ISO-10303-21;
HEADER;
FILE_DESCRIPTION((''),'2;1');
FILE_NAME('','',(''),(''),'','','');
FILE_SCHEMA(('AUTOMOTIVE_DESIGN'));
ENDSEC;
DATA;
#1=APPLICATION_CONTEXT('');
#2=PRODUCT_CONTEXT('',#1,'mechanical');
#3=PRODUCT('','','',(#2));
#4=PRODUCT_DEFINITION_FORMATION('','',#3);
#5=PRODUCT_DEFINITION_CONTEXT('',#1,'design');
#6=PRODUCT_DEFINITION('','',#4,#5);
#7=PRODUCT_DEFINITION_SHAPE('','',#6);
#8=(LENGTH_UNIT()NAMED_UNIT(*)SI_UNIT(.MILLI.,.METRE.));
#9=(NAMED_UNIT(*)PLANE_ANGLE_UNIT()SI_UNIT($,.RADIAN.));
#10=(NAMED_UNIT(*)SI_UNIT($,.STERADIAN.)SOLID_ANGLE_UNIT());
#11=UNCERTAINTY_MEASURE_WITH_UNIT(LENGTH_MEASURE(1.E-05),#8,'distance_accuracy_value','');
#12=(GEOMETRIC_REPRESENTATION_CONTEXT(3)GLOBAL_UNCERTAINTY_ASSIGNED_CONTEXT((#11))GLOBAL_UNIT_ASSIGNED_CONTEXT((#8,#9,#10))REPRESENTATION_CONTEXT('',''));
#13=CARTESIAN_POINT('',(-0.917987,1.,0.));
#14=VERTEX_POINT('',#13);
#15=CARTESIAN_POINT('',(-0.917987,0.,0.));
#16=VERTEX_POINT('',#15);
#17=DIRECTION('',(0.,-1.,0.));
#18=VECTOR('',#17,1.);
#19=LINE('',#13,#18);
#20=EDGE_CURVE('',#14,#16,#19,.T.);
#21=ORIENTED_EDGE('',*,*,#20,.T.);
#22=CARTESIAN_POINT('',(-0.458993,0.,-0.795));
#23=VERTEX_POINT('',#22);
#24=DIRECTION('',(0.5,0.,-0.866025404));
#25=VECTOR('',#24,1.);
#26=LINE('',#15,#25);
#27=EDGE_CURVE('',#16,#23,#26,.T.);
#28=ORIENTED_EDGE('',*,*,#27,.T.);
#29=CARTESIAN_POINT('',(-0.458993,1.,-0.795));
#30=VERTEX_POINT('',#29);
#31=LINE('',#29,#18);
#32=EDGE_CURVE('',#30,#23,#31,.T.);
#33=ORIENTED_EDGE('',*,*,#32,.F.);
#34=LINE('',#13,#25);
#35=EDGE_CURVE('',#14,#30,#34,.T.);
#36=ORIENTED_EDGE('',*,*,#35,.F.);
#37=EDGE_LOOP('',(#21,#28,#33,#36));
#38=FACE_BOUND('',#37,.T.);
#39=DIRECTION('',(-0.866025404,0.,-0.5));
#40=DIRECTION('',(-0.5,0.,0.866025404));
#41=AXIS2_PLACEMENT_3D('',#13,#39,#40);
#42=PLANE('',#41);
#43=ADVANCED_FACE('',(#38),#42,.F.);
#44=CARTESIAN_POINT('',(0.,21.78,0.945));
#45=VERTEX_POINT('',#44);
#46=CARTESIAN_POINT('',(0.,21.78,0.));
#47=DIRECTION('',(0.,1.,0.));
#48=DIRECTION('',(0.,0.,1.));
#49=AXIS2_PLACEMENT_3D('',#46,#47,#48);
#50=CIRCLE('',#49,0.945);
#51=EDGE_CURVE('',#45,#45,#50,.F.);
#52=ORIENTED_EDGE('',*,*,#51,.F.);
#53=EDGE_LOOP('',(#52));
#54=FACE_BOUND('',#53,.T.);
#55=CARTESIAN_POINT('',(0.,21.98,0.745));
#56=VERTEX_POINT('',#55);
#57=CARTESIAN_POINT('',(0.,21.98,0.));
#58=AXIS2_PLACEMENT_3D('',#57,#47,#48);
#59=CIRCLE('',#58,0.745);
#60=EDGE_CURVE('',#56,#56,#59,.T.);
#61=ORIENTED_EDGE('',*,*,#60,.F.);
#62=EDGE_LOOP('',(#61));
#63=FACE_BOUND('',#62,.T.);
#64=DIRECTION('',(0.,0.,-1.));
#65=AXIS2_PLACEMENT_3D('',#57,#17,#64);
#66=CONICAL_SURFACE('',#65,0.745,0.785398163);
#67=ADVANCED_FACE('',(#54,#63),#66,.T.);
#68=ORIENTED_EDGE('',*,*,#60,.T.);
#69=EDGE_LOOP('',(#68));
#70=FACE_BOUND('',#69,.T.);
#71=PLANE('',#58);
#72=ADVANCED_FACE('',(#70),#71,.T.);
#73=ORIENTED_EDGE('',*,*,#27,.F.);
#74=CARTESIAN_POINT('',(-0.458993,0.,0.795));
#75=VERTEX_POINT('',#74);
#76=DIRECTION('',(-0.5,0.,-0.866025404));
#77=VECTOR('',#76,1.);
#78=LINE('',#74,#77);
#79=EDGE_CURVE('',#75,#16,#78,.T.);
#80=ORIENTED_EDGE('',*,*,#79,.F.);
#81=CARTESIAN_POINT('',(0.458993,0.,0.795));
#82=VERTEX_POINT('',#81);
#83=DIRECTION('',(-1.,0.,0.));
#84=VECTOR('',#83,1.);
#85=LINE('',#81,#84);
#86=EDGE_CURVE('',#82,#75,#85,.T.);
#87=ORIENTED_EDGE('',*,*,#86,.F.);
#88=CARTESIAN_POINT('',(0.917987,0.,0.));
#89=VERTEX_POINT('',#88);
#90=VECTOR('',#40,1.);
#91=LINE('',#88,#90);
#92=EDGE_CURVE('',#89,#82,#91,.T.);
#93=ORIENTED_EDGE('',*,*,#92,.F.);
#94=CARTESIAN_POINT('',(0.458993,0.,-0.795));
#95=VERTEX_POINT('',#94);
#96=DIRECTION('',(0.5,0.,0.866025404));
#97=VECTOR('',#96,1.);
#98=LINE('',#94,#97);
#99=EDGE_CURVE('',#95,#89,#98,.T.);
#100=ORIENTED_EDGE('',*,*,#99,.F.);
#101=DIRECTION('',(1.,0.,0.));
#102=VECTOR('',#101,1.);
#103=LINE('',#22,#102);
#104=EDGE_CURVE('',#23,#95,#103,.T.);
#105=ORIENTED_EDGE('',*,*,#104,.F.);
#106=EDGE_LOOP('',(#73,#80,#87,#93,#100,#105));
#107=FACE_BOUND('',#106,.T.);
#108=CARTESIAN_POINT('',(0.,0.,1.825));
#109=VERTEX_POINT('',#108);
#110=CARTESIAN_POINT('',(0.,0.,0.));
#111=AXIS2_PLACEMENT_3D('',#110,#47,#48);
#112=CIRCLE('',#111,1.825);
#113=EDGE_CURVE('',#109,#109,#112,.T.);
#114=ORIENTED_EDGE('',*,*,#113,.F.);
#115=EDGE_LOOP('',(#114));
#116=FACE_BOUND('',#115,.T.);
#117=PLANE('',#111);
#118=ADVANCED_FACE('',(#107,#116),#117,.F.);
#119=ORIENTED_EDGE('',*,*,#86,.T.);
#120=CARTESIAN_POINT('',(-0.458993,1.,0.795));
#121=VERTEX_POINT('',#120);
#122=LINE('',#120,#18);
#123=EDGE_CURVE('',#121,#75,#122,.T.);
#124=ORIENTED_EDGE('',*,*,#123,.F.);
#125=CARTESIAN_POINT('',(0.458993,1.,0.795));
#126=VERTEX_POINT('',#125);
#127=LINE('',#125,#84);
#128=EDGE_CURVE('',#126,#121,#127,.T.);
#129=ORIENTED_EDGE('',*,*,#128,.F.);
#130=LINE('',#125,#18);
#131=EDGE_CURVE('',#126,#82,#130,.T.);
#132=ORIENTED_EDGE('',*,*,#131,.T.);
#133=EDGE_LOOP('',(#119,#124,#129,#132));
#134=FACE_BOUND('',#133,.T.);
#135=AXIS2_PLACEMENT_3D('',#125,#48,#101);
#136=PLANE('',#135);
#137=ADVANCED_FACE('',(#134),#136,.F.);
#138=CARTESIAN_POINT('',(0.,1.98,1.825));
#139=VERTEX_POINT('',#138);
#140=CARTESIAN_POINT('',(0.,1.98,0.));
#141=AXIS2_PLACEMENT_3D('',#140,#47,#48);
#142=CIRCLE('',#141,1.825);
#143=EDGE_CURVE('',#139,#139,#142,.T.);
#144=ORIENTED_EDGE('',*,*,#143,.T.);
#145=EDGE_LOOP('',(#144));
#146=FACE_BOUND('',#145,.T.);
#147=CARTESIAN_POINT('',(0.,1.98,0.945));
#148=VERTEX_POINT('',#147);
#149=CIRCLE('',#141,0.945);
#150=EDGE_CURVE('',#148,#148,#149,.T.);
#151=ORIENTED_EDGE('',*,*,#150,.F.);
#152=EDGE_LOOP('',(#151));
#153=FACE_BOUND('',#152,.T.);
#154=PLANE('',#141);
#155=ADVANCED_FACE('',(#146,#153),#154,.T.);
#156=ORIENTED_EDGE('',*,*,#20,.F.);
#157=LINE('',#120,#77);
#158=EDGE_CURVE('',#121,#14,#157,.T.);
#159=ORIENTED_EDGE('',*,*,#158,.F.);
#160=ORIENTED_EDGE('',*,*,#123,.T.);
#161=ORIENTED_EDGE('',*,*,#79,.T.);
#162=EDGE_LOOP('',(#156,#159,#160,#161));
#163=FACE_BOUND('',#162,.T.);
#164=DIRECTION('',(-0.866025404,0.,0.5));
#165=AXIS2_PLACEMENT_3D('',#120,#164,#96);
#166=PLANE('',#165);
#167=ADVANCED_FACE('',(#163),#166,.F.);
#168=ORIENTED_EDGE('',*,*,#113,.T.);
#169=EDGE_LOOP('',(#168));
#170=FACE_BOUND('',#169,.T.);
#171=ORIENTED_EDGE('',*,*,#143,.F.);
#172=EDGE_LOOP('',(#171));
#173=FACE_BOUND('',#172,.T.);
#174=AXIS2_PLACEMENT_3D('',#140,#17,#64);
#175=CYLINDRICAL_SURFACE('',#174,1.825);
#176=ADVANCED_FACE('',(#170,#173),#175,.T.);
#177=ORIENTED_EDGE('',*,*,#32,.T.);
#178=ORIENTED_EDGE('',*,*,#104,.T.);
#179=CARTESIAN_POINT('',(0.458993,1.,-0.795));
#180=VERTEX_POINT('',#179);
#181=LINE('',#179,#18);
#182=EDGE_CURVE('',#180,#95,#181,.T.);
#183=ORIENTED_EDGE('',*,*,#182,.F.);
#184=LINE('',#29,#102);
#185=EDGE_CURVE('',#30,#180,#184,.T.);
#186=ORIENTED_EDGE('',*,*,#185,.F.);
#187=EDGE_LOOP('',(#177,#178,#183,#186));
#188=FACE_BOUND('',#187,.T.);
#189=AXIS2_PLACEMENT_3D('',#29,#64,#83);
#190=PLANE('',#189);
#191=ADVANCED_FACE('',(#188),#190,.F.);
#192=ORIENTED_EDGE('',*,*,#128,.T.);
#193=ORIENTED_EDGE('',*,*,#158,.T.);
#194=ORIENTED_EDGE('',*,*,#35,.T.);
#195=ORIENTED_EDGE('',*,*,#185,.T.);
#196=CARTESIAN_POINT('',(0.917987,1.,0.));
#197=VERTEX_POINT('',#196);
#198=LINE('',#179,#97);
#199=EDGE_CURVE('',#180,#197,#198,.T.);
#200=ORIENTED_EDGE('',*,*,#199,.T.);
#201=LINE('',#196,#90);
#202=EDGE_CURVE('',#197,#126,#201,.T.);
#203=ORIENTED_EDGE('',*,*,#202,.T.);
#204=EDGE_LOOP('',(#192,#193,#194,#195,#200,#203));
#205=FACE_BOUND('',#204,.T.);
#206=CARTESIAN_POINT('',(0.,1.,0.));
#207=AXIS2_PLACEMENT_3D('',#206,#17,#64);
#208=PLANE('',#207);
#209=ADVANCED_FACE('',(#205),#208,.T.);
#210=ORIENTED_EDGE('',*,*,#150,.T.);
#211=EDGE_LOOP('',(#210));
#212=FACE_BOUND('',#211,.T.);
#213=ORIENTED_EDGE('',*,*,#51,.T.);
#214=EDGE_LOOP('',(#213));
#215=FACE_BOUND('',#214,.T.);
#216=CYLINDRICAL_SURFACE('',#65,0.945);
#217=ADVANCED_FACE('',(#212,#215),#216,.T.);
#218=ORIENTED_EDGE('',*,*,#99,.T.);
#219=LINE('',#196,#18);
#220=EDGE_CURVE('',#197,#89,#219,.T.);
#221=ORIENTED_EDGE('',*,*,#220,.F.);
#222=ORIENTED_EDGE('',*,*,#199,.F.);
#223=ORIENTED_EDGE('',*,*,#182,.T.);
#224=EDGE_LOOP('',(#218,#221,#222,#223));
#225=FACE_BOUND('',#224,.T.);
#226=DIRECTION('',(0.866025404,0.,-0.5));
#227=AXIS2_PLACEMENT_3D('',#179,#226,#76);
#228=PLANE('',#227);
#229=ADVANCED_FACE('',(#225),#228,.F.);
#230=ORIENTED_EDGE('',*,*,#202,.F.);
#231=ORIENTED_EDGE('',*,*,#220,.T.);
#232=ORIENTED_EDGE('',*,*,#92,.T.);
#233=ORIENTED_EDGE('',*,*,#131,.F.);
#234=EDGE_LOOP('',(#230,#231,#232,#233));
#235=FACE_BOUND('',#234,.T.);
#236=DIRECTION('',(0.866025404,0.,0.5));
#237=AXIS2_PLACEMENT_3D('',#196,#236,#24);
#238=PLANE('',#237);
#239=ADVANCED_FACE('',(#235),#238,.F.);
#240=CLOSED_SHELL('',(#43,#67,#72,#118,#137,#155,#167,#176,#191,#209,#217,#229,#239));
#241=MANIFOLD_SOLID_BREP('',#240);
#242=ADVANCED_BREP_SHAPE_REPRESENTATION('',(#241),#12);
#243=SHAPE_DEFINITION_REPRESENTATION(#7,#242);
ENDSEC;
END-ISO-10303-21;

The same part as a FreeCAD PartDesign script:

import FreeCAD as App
import Part
import Sketcher
Q = App.Units.Quantity


def edges_at(feature, points):
    """Names of the edges that pass closest to the given points."""
    edges = feature.Shape.Edges
    near = lambda p: min(range(len(edges)), key=lambda i: edges[i].distToShape(Part.Vertex(*p))[0])
    return sorted({f"Edge{near(p) + 1}" for p in points})

doc = App.newDocument("Part")
body = doc.addObject("PartDesign::Body", "Body")

# Sketch on XZ plane
sketch1 = doc.addObject("Sketcher::SketchObject", "Sketch")
body.addObject(sketch1)
sketch1.AttachmentSupport = (doc.XZ_Plane, [""])
sketch1.MapMode = "FlatFace"
sketch1.addGeometry(Part.Circle(App.Vector(0, 0, 0), App.Vector(0, 0, 1), 1.8), False)
sketch1.addConstraint(Sketcher.Constraint("Coincident", 0, 3, -1, 1))
sketch1.addConstraint(Sketcher.Constraint("Diameter", 0, 3.65))
pad1 = doc.addObject("PartDesign::Pad", "Pad")
body.addObject(pad1)
pad1.Profile = sketch1
pad1.Length = 1.98
pad1.Reversed = True

# Sketch on XZ plane
sketch2 = doc.addObject("Sketcher::SketchObject", "Sketch001")
body.addObject(sketch2)
sketch2.AttachmentSupport = (doc.XZ_Plane, [""])
sketch2.MapMode = "FlatFace"
sketch2.AttachmentOffset = App.Placement(App.Vector(0, 0, -1.98), App.Rotation())
sketch2.addGeometry(Part.Circle(App.Vector(0, 0, 0), App.Vector(0, 0, 1), 0.9), False)
sketch2.addConstraint(Sketcher.Constraint("Coincident", 0, 3, -1, 1))
sketch2.addConstraint(Sketcher.Constraint("Diameter", 0, 1.89))
pad2 = doc.addObject("PartDesign::Pad", "Pad001")
body.addObject(pad2)
pad2.Profile = sketch2
pad2.Length = 20
pad2.Reversed = True

# Sketch on XZ plane
sketch3 = doc.addObject("Sketcher::SketchObject", "Sketch002")
body.addObject(sketch3)
sketch3.AttachmentSupport = (doc.XZ_Plane, [""])
sketch3.MapMode = "FlatFace"
sketch3.addGeometry(Part.LineSegment(App.Vector(0.5, -0.8, 0), App.Vector(0.9, 0, 0)), False)
sketch3.addGeometry(Part.LineSegment(App.Vector(0.9, 0, 0), App.Vector(0.5, 0.8, 0)), False)
sketch3.addGeometry(Part.LineSegment(App.Vector(0.5, 0.8, 0), App.Vector(-0.5, 0.8, 0)), False)
sketch3.addGeometry(Part.LineSegment(App.Vector(-0.5, 0.8, 0), App.Vector(-0.9, 0, 0)), False)
sketch3.addGeometry(Part.LineSegment(App.Vector(-0.9, 0, 0), App.Vector(-0.5, -0.8, 0)), False)
sketch3.addGeometry(Part.LineSegment(App.Vector(-0.5, -0.8, 0), App.Vector(0.5, -0.8, 0)), False)
sketch3.addConstraint(Sketcher.Constraint("Coincident", 0, 2, 1, 1))
sketch3.addConstraint(Sketcher.Constraint("Coincident", 1, 2, 2, 1))
sketch3.addConstraint(Sketcher.Constraint("Coincident", 2, 2, 3, 1))
sketch3.addConstraint(Sketcher.Constraint("Coincident", 3, 2, 4, 1))
sketch3.addConstraint(Sketcher.Constraint("Coincident", 4, 2, 5, 1))
sketch3.addConstraint(Sketcher.Constraint("Coincident", 5, 2, 0, 1))
sketch3.addConstraint(Sketcher.Constraint("Horizontal", 2))
sketch3.addConstraint(Sketcher.Constraint("Horizontal", 5))
sketch3.addConstraint(Sketcher.Constraint("Symmetric", 0, 2, 3, 2, -1, 1))
sketch3.addConstraint(Sketcher.Constraint("Symmetric", 1, 2, 4, 2, -1, 1))
sketch3.addConstraint(Sketcher.Constraint("PointOnObject", 0, 2, -1))
sketch3.addConstraint(Sketcher.Constraint("Parallel", 0, 3))
sketch3.addConstraint(Sketcher.Constraint("Vertical", 2, 2, 4, 2))
sketch3.addConstraint(Sketcher.Constraint("Angle", 0, Q("60 deg")))
sketch3.addConstraint(Sketcher.Constraint("DistanceY", 4, 2, 2, 2, 1.59))
sketch3.addConstraint(Sketcher.Constraint("DistanceX", 2, 2, 2, 1, 0.917987))
pocket1 = doc.addObject("PartDesign::Pocket", "Pocket")
body.addObject(pocket1)
pocket1.Profile = sketch3
pocket1.Length = 1
doc.recompute()

chamfer = doc.addObject("PartDesign::Chamfer", "Chamfer")
body.addObject(chamfer)
chamfer.Base = (pocket1, edges_at(pocket1, [(-0.945, 21.98, 0)]))
chamfer.Size = 0.2

doc.recompute()
